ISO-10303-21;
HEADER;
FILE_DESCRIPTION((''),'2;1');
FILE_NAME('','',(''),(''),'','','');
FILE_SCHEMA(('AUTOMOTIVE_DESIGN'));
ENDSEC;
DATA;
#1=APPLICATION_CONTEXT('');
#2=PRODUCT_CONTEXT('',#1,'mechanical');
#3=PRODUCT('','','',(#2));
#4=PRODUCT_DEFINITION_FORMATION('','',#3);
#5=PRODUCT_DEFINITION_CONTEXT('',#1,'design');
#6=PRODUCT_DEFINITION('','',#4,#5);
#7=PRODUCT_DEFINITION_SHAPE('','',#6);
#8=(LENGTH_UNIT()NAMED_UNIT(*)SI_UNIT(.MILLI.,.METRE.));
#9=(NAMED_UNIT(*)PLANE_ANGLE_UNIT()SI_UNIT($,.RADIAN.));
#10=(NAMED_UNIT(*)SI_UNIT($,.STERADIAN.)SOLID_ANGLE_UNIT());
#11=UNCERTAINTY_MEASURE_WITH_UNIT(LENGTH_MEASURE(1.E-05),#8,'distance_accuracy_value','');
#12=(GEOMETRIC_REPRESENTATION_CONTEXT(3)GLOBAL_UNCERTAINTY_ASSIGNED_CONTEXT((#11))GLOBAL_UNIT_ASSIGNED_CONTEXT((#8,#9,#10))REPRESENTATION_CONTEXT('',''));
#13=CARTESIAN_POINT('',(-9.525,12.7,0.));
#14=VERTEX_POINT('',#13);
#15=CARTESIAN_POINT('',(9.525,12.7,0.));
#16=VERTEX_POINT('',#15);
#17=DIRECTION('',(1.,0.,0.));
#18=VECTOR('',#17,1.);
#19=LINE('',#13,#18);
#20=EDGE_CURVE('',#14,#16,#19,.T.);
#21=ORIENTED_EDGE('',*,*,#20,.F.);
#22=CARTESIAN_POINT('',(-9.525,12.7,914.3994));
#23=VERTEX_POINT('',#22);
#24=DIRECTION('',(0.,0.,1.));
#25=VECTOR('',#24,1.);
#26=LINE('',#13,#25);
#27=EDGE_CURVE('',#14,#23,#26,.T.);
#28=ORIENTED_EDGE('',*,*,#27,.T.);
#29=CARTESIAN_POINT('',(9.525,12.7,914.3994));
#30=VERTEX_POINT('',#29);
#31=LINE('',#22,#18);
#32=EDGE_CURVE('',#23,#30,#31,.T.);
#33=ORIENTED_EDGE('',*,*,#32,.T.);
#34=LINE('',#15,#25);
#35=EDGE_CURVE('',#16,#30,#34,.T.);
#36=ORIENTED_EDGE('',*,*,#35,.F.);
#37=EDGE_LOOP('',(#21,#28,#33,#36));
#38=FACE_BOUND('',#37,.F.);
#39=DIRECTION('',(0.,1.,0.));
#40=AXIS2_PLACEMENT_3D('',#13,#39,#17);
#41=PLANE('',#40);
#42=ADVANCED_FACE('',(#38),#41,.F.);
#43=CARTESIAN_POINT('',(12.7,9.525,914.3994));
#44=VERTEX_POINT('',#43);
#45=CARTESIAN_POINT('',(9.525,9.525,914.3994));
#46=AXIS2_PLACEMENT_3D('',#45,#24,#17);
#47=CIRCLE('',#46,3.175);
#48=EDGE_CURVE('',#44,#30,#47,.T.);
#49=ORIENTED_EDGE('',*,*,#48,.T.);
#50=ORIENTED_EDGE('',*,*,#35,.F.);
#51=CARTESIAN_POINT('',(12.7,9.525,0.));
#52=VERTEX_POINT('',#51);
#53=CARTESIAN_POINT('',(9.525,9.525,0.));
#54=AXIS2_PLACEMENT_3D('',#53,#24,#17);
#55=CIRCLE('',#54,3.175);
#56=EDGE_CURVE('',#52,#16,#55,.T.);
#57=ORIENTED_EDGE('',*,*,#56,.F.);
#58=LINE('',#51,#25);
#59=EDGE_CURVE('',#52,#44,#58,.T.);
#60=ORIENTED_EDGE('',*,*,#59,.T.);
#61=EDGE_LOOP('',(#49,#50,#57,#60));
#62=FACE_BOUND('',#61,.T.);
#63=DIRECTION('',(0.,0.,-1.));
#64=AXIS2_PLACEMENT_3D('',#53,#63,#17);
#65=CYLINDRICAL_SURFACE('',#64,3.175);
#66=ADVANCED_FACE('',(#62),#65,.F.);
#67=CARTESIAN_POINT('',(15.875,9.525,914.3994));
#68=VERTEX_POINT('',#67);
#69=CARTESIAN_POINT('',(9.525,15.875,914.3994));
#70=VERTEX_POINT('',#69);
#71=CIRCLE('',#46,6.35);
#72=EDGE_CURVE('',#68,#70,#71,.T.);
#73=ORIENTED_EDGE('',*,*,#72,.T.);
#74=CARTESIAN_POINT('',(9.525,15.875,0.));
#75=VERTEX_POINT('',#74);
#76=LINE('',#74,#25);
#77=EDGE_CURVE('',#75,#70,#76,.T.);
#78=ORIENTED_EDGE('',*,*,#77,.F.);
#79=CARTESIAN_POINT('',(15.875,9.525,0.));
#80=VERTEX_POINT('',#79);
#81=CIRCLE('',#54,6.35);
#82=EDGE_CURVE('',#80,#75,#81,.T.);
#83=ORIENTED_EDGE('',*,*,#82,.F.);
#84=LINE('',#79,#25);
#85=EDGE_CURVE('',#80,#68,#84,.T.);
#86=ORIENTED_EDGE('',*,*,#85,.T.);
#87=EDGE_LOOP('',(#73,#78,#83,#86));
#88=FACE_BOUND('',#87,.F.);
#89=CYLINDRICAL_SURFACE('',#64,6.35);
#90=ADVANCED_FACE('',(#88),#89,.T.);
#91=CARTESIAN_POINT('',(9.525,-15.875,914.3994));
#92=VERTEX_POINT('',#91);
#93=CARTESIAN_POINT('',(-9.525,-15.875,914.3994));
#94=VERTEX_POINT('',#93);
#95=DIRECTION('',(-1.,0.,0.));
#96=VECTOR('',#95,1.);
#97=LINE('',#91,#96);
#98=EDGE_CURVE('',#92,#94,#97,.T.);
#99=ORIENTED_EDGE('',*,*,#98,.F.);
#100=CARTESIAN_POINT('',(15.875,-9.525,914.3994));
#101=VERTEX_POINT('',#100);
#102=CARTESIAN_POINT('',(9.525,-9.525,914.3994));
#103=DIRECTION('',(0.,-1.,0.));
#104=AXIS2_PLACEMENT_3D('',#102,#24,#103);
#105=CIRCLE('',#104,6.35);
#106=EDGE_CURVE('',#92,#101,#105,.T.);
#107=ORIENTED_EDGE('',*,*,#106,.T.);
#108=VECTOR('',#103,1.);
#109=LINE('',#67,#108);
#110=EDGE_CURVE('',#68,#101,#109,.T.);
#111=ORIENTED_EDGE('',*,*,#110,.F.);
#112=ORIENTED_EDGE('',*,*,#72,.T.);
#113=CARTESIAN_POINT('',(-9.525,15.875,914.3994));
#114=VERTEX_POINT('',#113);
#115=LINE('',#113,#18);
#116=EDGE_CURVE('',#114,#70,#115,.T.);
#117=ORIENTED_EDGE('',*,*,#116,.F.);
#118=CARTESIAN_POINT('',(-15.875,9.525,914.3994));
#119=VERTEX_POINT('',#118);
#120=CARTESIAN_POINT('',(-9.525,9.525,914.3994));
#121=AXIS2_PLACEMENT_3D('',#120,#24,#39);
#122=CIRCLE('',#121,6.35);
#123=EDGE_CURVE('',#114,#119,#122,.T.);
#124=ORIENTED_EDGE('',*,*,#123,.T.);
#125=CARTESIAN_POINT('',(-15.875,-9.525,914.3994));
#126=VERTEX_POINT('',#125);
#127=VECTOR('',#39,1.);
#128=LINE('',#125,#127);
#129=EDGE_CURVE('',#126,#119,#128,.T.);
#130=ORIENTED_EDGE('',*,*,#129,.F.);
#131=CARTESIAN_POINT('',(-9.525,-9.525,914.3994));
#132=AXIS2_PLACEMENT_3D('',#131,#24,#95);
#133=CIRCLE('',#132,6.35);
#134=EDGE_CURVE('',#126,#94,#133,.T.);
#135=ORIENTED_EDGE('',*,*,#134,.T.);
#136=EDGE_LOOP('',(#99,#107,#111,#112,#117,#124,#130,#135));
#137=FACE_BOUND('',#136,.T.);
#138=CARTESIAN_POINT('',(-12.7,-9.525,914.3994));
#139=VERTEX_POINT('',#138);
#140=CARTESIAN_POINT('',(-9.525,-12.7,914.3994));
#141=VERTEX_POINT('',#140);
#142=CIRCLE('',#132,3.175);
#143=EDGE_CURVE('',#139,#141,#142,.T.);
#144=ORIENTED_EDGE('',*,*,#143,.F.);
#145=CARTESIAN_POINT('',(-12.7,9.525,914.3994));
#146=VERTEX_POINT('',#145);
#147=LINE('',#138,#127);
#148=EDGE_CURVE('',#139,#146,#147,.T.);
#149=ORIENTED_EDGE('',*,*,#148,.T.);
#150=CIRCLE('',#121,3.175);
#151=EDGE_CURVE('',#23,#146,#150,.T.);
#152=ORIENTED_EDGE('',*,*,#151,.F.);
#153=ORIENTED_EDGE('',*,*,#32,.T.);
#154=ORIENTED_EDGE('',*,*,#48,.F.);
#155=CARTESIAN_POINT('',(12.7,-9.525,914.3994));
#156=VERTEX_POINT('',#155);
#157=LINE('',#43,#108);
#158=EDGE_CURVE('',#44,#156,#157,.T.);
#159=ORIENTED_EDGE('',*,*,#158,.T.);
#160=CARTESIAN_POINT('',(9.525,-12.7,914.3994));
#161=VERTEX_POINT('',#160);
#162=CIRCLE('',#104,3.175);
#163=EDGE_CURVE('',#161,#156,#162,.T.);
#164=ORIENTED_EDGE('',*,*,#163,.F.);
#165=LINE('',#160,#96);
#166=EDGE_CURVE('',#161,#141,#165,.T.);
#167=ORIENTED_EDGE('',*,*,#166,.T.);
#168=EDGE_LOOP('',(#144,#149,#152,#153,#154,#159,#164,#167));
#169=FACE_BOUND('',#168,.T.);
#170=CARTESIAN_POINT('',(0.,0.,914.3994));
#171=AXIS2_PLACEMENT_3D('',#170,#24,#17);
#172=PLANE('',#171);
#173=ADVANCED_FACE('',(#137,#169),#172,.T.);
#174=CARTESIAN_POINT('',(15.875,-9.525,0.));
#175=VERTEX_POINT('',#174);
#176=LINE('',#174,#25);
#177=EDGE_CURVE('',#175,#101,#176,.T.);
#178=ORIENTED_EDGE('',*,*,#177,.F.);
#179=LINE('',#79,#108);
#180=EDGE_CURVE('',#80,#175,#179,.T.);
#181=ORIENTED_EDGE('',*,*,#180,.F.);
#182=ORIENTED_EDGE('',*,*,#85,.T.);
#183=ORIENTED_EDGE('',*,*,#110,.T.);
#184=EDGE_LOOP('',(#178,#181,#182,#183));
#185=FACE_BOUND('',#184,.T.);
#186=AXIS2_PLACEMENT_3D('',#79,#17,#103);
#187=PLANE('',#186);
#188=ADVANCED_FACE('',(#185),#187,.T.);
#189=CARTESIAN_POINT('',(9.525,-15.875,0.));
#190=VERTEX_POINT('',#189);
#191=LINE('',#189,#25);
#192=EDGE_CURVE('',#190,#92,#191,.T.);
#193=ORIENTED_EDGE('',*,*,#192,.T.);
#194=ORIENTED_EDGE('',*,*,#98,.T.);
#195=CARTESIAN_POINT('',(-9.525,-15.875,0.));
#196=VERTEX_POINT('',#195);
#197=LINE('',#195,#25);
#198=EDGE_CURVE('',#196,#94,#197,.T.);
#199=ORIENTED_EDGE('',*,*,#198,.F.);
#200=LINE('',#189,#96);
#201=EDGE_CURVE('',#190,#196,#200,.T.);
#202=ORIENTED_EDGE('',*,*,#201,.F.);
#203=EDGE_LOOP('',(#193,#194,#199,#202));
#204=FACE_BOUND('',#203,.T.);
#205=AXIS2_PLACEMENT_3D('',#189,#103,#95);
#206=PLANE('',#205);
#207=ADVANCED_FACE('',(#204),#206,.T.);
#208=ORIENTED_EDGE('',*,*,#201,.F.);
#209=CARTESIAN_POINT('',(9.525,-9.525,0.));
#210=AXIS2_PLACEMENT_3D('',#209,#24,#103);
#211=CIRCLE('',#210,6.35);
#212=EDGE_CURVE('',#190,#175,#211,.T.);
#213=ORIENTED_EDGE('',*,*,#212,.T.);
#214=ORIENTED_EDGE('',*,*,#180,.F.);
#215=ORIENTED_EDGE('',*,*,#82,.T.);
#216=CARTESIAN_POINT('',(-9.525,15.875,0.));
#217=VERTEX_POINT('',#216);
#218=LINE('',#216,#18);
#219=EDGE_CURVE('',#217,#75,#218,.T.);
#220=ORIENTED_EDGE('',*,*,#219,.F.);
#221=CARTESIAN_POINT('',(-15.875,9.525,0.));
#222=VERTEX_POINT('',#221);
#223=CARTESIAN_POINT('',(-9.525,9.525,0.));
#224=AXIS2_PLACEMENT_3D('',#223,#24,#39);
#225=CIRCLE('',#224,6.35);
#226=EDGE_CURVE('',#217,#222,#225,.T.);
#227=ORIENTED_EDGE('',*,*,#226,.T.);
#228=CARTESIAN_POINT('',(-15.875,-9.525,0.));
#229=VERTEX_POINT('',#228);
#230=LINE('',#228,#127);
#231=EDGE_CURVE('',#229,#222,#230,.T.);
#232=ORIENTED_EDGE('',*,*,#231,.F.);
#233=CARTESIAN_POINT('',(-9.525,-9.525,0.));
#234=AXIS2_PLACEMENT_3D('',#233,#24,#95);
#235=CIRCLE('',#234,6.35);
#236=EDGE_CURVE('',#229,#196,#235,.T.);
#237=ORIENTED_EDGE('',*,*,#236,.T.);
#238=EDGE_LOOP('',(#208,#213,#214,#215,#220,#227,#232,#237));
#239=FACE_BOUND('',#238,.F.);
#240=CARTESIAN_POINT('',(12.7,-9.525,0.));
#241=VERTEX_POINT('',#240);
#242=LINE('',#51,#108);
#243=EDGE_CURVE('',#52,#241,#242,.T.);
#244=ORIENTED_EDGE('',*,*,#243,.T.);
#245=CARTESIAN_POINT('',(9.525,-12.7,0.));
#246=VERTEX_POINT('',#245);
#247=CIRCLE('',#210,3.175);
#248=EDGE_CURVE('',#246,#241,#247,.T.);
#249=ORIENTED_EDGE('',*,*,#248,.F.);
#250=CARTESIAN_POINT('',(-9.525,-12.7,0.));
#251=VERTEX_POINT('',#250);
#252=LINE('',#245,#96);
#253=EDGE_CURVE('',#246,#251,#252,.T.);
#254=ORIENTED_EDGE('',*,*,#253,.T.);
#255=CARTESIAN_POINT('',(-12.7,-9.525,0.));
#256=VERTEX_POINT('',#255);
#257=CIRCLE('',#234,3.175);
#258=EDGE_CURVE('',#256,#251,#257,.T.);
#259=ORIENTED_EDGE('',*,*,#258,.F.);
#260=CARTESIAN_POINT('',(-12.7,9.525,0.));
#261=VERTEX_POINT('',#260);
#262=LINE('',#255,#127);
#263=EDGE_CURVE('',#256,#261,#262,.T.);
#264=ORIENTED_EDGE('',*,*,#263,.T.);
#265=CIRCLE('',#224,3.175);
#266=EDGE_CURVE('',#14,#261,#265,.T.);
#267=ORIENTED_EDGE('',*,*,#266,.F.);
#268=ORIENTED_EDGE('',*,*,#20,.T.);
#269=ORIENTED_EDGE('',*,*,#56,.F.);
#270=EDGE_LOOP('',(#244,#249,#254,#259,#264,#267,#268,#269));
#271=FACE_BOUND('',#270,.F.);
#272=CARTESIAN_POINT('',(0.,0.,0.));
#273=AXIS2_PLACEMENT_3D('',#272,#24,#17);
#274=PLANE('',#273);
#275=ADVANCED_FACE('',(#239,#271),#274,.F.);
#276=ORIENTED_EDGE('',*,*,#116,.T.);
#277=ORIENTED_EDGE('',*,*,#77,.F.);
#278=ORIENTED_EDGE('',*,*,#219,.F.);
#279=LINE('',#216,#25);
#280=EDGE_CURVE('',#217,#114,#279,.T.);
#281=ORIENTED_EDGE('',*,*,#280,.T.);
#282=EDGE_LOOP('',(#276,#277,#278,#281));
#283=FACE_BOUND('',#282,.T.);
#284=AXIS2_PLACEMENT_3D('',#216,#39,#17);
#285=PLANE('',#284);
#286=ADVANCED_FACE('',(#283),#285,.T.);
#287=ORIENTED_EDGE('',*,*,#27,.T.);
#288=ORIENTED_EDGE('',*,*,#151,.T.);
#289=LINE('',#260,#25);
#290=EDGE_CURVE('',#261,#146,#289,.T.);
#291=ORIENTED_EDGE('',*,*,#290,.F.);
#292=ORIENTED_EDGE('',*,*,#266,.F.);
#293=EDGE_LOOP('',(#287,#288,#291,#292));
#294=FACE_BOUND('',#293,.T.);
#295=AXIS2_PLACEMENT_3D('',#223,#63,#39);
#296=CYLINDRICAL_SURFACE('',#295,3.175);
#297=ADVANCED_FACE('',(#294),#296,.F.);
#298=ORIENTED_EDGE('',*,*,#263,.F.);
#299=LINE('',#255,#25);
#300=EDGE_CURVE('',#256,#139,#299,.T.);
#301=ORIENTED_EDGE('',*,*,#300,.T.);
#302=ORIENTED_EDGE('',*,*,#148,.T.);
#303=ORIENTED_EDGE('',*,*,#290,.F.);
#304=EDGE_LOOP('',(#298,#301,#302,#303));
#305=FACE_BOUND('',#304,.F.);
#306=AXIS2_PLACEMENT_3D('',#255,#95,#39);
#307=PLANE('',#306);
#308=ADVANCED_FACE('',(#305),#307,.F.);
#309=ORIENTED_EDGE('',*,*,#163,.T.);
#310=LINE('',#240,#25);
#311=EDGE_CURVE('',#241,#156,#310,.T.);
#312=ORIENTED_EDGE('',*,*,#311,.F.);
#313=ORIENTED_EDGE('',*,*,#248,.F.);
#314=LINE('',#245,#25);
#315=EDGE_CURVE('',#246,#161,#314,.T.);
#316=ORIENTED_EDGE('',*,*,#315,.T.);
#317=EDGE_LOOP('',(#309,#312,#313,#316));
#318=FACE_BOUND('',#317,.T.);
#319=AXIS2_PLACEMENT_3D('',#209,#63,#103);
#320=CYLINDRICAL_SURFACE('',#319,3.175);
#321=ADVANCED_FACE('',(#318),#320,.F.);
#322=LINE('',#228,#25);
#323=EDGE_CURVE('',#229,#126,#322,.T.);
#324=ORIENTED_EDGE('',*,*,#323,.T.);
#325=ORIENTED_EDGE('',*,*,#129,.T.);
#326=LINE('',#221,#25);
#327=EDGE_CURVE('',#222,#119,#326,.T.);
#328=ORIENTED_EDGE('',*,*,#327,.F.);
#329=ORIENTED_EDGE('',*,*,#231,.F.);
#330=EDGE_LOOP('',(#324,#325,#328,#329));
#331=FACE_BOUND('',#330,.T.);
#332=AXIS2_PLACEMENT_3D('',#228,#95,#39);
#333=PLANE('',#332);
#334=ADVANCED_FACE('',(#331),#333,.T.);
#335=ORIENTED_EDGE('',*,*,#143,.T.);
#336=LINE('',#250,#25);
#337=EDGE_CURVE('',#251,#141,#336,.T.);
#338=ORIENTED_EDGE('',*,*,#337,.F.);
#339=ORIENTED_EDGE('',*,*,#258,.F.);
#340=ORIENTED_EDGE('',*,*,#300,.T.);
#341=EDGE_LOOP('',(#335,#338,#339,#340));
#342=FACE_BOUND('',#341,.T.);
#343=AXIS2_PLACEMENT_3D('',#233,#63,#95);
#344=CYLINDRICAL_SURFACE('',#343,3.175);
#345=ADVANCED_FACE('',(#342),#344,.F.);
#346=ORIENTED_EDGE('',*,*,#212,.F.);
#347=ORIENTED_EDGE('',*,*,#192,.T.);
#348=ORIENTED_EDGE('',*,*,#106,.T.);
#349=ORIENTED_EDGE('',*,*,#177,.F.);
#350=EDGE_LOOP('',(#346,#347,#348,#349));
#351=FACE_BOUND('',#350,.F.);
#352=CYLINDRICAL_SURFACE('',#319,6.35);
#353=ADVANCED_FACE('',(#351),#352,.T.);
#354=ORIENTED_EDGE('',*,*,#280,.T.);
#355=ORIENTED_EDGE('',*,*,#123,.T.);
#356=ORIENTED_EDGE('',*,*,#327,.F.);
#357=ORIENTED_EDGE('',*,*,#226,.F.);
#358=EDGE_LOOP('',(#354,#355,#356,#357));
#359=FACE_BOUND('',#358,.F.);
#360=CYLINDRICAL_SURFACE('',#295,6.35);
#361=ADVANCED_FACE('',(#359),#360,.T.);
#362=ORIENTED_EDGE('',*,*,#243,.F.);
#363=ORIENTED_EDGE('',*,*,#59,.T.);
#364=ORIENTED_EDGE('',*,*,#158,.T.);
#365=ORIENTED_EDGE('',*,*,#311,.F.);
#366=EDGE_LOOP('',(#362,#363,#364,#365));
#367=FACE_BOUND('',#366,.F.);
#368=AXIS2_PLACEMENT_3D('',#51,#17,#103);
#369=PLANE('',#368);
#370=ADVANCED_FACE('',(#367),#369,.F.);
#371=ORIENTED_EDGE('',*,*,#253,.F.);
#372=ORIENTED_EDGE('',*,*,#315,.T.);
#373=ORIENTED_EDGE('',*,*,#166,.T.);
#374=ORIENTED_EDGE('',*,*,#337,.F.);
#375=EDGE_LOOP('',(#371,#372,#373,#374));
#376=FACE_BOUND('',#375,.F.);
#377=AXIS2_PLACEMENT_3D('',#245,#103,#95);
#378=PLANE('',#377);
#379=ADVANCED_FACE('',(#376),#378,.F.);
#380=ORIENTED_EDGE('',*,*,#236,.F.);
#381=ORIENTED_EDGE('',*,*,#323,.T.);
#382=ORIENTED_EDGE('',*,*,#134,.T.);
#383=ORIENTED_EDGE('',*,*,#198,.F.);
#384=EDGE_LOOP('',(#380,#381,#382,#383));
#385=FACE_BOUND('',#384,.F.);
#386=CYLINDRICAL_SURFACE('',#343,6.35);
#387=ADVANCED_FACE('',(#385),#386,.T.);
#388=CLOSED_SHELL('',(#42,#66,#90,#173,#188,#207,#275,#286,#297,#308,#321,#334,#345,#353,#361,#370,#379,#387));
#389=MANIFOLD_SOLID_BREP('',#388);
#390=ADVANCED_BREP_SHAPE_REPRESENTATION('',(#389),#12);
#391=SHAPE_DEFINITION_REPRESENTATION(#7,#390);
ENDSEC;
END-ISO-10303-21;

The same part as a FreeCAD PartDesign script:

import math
import FreeCAD as App
import Part
import Sketcher
Q = App.Units.Quantity

doc = App.newDocument("Part")
body = doc.addObject("PartDesign::Body", "Body")

# Sketch on XY plane
sketch1 = body.newObject("Sketcher::SketchObject", "Sketch")
sketch1.AttachmentSupport = (doc.getObject("XY_Plane"), [""])
sketch1.MapMode = "FlatFace"
sketch1.addGeometry(Part.LineSegment(App.Vector(-15.9, 9.5, 0), App.Vector(-15.9, -9.5, 0)), False)
sketch1.addGeometry(Part.ArcOfCircle(Part.Circle(App.Vector(-9.5, -9.5, 0), App.Vector(0, 0, 1), 6.3), math.radians(180), math.radians(270)), False)
sketch1.addGeometry(Part.LineSegment(App.Vector(-9.5, -15.9, 0), App.Vector(9.5, -15.9, 0)), False)
sketch1.addGeometry(Part.ArcOfCircle(Part.Circle(App.Vector(9.5, -9.5, 0), App.Vector(0, 0, 1), 6.3), math.radians(-90), math.radians(0)), False)
sketch1.addGeometry(Part.LineSegment(App.Vector(15.9, -9.5, 0), App.Vector(15.9, 9.5, 0)), False)
sketch1.addGeometry(Part.ArcOfCircle(Part.Circle(App.Vector(9.5, 9.5, 0), App.Vector(0, 0, 1), 6.3), math.radians(0), math.radians(90)), False)
sketch1.addGeometry(Part.LineSegment(App.Vector(9.5, 15.9, 0), App.Vector(-9.5, 15.9, 0)), False)
sketch1.addGeometry(Part.ArcOfCircle(Part.Circle(App.Vector(-9.5, 9.5, 0), App.Vector(0, 0, 1), 6.3), math.radians(90), math.radians(180)), False)
sketch1.addGeometry(Part.ArcOfCircle(Part.Circle(App.Vector(-9.5, 9.5, 0), App.Vector(0, 0, 1), 3.2), math.radians(90), math.radians(180)), False)
sketch1.addGeometry(Part.LineSegment(App.Vector(-9.5, 12.7, 0), App.Vector(9.5, 12.7, 0)), False)
sketch1.addGeometry(Part.ArcOfCircle(Part.Circle(App.Vector(9.5, 9.5, 0), App.Vector(0, 0, 1), 3.2), math.radians(0), math.radians(90)), False)
sketch1.addGeometry(Part.LineSegment(App.Vector(12.7, 9.5, 0), App.Vector(12.7, -9.5, 0)), False)
sketch1.addGeometry(Part.ArcOfCircle(Part.Circle(App.Vector(9.5, -9.5, 0), App.Vector(0, 0, 1), 3.2), math.radians(-90), math.radians(0)), False)
sketch1.addGeometry(Part.LineSegment(App.Vector(9.5, -12.7, 0), App.Vector(-9.5, -12.7, 0)), False)
sketch1.addGeometry(Part.ArcOfCircle(Part.Circle(App.Vector(-9.5, -9.5, 0), App.Vector(0, 0, 1), 3.2), math.radians(180), math.radians(270)), False)
sketch1.addGeometry(Part.LineSegment(App.Vector(-12.7, -9.5, 0), App.Vector(-12.7, 9.5, 0)), False)
sketch1.addConstraint(Sketcher.Constraint("Tangent", 0, 2, 1, 1))
sketch1.addConstraint(Sketcher.Constraint("Tangent", 1, 2, 2, 1))
sketch1.addConstraint(Sketcher.Constraint("Tangent", 2, 2, 3, 1))
sketch1.addConstraint(Sketcher.Constraint("Tangent", 3, 2, 4, 1))
sketch1.addConstraint(Sketcher.Constraint("Tangent", 4, 2, 5, 1))
sketch1.addConstraint(Sketcher.Constraint("Tangent", 5, 2, 6, 1))
sketch1.addConstraint(Sketcher.Constraint("Tangent", 6, 2, 7, 1))
sketch1.addConstraint(Sketcher.Constraint("Tangent", 7, 2, 0, 1))
sketch1.addConstraint(Sketcher.Constraint("Tangent", 8, 1, 9, 1))
sketch1.addConstraint(Sketcher.Constraint("Tangent", 9, 2, 10, 2))
sketch1.addConstraint(Sketcher.Constraint("Tangent", 10, 1, 11, 1))
sketch1.addConstraint(Sketcher.Constraint("Tangent", 11, 2, 12, 2))
sketch1.addConstraint(Sketcher.Constraint("Tangent", 12, 1, 13, 1))
sketch1.addConstraint(Sketcher.Constraint("Tangent", 13, 2, 14, 2))
sketch1.addConstraint(Sketcher.Constraint("Tangent", 14, 1, 15, 1))
sketch1.addConstraint(Sketcher.Constraint("Tangent", 15, 2, 8, 2))
sketch1.addConstraint(Sketcher.Constraint("Vertical", 0))
sketch1.addConstraint(Sketcher.Constraint("Horizontal", 2))
sketch1.addConstraint(Sketcher.Constraint("Vertical", 4))
sketch1.addConstraint(Sketcher.Constraint("Horizontal", 6))
sketch1.addConstraint(Sketcher.Constraint("Horizontal", 9))
sketch1.addConstraint(Sketcher.Constraint("Vertical", 11))
sketch1.addConstraint(Sketcher.Constraint("Horizontal", 13))
sketch1.addConstraint(Sketcher.Constraint("Vertical", 15))
sketch1.addConstraint(Sketcher.Constraint("Coincident", 8, 3, 7, 3))
sketch1.addConstraint(Sketcher.Constraint("Coincident", 10, 3, 5, 3))
sketch1.addConstraint(Sketcher.Constraint("Coincident", 12, 3, 3, 3))
sketch1.addConstraint(Sketcher.Constraint("Equal", 1, 3))
sketch1.addConstraint(Sketcher.Constraint("Equal", 3, 5))
sketch1.addConstraint(Sketcher.Constraint("Equal", 5, 7))
sketch1.addConstraint(Sketcher.Constraint("Equal", 12, 14))
sketch1.addConstraint(Sketcher.Constraint("Symmetric", 1, 3, 5, 3, -1, 1))
sketch1.addConstraint(Sketcher.Constraint("Equal", 13, 0))
sketch1.addConstraint(Sketcher.Constraint("Radius", 1, Q("0.25 in")))
sketch1.addConstraint(Sketcher.Constraint("Radius", 8, Q("0.125 in")))
sketch1.addConstraint(Sketcher.Constraint("DistanceX", 0, 2, -1, 1, Q("0.625 in")))
pad1 = body.newObject("PartDesign::Pad", "Pad")
pad1.Profile = sketch1
pad1.Length = 914.3994

doc.recompute()
